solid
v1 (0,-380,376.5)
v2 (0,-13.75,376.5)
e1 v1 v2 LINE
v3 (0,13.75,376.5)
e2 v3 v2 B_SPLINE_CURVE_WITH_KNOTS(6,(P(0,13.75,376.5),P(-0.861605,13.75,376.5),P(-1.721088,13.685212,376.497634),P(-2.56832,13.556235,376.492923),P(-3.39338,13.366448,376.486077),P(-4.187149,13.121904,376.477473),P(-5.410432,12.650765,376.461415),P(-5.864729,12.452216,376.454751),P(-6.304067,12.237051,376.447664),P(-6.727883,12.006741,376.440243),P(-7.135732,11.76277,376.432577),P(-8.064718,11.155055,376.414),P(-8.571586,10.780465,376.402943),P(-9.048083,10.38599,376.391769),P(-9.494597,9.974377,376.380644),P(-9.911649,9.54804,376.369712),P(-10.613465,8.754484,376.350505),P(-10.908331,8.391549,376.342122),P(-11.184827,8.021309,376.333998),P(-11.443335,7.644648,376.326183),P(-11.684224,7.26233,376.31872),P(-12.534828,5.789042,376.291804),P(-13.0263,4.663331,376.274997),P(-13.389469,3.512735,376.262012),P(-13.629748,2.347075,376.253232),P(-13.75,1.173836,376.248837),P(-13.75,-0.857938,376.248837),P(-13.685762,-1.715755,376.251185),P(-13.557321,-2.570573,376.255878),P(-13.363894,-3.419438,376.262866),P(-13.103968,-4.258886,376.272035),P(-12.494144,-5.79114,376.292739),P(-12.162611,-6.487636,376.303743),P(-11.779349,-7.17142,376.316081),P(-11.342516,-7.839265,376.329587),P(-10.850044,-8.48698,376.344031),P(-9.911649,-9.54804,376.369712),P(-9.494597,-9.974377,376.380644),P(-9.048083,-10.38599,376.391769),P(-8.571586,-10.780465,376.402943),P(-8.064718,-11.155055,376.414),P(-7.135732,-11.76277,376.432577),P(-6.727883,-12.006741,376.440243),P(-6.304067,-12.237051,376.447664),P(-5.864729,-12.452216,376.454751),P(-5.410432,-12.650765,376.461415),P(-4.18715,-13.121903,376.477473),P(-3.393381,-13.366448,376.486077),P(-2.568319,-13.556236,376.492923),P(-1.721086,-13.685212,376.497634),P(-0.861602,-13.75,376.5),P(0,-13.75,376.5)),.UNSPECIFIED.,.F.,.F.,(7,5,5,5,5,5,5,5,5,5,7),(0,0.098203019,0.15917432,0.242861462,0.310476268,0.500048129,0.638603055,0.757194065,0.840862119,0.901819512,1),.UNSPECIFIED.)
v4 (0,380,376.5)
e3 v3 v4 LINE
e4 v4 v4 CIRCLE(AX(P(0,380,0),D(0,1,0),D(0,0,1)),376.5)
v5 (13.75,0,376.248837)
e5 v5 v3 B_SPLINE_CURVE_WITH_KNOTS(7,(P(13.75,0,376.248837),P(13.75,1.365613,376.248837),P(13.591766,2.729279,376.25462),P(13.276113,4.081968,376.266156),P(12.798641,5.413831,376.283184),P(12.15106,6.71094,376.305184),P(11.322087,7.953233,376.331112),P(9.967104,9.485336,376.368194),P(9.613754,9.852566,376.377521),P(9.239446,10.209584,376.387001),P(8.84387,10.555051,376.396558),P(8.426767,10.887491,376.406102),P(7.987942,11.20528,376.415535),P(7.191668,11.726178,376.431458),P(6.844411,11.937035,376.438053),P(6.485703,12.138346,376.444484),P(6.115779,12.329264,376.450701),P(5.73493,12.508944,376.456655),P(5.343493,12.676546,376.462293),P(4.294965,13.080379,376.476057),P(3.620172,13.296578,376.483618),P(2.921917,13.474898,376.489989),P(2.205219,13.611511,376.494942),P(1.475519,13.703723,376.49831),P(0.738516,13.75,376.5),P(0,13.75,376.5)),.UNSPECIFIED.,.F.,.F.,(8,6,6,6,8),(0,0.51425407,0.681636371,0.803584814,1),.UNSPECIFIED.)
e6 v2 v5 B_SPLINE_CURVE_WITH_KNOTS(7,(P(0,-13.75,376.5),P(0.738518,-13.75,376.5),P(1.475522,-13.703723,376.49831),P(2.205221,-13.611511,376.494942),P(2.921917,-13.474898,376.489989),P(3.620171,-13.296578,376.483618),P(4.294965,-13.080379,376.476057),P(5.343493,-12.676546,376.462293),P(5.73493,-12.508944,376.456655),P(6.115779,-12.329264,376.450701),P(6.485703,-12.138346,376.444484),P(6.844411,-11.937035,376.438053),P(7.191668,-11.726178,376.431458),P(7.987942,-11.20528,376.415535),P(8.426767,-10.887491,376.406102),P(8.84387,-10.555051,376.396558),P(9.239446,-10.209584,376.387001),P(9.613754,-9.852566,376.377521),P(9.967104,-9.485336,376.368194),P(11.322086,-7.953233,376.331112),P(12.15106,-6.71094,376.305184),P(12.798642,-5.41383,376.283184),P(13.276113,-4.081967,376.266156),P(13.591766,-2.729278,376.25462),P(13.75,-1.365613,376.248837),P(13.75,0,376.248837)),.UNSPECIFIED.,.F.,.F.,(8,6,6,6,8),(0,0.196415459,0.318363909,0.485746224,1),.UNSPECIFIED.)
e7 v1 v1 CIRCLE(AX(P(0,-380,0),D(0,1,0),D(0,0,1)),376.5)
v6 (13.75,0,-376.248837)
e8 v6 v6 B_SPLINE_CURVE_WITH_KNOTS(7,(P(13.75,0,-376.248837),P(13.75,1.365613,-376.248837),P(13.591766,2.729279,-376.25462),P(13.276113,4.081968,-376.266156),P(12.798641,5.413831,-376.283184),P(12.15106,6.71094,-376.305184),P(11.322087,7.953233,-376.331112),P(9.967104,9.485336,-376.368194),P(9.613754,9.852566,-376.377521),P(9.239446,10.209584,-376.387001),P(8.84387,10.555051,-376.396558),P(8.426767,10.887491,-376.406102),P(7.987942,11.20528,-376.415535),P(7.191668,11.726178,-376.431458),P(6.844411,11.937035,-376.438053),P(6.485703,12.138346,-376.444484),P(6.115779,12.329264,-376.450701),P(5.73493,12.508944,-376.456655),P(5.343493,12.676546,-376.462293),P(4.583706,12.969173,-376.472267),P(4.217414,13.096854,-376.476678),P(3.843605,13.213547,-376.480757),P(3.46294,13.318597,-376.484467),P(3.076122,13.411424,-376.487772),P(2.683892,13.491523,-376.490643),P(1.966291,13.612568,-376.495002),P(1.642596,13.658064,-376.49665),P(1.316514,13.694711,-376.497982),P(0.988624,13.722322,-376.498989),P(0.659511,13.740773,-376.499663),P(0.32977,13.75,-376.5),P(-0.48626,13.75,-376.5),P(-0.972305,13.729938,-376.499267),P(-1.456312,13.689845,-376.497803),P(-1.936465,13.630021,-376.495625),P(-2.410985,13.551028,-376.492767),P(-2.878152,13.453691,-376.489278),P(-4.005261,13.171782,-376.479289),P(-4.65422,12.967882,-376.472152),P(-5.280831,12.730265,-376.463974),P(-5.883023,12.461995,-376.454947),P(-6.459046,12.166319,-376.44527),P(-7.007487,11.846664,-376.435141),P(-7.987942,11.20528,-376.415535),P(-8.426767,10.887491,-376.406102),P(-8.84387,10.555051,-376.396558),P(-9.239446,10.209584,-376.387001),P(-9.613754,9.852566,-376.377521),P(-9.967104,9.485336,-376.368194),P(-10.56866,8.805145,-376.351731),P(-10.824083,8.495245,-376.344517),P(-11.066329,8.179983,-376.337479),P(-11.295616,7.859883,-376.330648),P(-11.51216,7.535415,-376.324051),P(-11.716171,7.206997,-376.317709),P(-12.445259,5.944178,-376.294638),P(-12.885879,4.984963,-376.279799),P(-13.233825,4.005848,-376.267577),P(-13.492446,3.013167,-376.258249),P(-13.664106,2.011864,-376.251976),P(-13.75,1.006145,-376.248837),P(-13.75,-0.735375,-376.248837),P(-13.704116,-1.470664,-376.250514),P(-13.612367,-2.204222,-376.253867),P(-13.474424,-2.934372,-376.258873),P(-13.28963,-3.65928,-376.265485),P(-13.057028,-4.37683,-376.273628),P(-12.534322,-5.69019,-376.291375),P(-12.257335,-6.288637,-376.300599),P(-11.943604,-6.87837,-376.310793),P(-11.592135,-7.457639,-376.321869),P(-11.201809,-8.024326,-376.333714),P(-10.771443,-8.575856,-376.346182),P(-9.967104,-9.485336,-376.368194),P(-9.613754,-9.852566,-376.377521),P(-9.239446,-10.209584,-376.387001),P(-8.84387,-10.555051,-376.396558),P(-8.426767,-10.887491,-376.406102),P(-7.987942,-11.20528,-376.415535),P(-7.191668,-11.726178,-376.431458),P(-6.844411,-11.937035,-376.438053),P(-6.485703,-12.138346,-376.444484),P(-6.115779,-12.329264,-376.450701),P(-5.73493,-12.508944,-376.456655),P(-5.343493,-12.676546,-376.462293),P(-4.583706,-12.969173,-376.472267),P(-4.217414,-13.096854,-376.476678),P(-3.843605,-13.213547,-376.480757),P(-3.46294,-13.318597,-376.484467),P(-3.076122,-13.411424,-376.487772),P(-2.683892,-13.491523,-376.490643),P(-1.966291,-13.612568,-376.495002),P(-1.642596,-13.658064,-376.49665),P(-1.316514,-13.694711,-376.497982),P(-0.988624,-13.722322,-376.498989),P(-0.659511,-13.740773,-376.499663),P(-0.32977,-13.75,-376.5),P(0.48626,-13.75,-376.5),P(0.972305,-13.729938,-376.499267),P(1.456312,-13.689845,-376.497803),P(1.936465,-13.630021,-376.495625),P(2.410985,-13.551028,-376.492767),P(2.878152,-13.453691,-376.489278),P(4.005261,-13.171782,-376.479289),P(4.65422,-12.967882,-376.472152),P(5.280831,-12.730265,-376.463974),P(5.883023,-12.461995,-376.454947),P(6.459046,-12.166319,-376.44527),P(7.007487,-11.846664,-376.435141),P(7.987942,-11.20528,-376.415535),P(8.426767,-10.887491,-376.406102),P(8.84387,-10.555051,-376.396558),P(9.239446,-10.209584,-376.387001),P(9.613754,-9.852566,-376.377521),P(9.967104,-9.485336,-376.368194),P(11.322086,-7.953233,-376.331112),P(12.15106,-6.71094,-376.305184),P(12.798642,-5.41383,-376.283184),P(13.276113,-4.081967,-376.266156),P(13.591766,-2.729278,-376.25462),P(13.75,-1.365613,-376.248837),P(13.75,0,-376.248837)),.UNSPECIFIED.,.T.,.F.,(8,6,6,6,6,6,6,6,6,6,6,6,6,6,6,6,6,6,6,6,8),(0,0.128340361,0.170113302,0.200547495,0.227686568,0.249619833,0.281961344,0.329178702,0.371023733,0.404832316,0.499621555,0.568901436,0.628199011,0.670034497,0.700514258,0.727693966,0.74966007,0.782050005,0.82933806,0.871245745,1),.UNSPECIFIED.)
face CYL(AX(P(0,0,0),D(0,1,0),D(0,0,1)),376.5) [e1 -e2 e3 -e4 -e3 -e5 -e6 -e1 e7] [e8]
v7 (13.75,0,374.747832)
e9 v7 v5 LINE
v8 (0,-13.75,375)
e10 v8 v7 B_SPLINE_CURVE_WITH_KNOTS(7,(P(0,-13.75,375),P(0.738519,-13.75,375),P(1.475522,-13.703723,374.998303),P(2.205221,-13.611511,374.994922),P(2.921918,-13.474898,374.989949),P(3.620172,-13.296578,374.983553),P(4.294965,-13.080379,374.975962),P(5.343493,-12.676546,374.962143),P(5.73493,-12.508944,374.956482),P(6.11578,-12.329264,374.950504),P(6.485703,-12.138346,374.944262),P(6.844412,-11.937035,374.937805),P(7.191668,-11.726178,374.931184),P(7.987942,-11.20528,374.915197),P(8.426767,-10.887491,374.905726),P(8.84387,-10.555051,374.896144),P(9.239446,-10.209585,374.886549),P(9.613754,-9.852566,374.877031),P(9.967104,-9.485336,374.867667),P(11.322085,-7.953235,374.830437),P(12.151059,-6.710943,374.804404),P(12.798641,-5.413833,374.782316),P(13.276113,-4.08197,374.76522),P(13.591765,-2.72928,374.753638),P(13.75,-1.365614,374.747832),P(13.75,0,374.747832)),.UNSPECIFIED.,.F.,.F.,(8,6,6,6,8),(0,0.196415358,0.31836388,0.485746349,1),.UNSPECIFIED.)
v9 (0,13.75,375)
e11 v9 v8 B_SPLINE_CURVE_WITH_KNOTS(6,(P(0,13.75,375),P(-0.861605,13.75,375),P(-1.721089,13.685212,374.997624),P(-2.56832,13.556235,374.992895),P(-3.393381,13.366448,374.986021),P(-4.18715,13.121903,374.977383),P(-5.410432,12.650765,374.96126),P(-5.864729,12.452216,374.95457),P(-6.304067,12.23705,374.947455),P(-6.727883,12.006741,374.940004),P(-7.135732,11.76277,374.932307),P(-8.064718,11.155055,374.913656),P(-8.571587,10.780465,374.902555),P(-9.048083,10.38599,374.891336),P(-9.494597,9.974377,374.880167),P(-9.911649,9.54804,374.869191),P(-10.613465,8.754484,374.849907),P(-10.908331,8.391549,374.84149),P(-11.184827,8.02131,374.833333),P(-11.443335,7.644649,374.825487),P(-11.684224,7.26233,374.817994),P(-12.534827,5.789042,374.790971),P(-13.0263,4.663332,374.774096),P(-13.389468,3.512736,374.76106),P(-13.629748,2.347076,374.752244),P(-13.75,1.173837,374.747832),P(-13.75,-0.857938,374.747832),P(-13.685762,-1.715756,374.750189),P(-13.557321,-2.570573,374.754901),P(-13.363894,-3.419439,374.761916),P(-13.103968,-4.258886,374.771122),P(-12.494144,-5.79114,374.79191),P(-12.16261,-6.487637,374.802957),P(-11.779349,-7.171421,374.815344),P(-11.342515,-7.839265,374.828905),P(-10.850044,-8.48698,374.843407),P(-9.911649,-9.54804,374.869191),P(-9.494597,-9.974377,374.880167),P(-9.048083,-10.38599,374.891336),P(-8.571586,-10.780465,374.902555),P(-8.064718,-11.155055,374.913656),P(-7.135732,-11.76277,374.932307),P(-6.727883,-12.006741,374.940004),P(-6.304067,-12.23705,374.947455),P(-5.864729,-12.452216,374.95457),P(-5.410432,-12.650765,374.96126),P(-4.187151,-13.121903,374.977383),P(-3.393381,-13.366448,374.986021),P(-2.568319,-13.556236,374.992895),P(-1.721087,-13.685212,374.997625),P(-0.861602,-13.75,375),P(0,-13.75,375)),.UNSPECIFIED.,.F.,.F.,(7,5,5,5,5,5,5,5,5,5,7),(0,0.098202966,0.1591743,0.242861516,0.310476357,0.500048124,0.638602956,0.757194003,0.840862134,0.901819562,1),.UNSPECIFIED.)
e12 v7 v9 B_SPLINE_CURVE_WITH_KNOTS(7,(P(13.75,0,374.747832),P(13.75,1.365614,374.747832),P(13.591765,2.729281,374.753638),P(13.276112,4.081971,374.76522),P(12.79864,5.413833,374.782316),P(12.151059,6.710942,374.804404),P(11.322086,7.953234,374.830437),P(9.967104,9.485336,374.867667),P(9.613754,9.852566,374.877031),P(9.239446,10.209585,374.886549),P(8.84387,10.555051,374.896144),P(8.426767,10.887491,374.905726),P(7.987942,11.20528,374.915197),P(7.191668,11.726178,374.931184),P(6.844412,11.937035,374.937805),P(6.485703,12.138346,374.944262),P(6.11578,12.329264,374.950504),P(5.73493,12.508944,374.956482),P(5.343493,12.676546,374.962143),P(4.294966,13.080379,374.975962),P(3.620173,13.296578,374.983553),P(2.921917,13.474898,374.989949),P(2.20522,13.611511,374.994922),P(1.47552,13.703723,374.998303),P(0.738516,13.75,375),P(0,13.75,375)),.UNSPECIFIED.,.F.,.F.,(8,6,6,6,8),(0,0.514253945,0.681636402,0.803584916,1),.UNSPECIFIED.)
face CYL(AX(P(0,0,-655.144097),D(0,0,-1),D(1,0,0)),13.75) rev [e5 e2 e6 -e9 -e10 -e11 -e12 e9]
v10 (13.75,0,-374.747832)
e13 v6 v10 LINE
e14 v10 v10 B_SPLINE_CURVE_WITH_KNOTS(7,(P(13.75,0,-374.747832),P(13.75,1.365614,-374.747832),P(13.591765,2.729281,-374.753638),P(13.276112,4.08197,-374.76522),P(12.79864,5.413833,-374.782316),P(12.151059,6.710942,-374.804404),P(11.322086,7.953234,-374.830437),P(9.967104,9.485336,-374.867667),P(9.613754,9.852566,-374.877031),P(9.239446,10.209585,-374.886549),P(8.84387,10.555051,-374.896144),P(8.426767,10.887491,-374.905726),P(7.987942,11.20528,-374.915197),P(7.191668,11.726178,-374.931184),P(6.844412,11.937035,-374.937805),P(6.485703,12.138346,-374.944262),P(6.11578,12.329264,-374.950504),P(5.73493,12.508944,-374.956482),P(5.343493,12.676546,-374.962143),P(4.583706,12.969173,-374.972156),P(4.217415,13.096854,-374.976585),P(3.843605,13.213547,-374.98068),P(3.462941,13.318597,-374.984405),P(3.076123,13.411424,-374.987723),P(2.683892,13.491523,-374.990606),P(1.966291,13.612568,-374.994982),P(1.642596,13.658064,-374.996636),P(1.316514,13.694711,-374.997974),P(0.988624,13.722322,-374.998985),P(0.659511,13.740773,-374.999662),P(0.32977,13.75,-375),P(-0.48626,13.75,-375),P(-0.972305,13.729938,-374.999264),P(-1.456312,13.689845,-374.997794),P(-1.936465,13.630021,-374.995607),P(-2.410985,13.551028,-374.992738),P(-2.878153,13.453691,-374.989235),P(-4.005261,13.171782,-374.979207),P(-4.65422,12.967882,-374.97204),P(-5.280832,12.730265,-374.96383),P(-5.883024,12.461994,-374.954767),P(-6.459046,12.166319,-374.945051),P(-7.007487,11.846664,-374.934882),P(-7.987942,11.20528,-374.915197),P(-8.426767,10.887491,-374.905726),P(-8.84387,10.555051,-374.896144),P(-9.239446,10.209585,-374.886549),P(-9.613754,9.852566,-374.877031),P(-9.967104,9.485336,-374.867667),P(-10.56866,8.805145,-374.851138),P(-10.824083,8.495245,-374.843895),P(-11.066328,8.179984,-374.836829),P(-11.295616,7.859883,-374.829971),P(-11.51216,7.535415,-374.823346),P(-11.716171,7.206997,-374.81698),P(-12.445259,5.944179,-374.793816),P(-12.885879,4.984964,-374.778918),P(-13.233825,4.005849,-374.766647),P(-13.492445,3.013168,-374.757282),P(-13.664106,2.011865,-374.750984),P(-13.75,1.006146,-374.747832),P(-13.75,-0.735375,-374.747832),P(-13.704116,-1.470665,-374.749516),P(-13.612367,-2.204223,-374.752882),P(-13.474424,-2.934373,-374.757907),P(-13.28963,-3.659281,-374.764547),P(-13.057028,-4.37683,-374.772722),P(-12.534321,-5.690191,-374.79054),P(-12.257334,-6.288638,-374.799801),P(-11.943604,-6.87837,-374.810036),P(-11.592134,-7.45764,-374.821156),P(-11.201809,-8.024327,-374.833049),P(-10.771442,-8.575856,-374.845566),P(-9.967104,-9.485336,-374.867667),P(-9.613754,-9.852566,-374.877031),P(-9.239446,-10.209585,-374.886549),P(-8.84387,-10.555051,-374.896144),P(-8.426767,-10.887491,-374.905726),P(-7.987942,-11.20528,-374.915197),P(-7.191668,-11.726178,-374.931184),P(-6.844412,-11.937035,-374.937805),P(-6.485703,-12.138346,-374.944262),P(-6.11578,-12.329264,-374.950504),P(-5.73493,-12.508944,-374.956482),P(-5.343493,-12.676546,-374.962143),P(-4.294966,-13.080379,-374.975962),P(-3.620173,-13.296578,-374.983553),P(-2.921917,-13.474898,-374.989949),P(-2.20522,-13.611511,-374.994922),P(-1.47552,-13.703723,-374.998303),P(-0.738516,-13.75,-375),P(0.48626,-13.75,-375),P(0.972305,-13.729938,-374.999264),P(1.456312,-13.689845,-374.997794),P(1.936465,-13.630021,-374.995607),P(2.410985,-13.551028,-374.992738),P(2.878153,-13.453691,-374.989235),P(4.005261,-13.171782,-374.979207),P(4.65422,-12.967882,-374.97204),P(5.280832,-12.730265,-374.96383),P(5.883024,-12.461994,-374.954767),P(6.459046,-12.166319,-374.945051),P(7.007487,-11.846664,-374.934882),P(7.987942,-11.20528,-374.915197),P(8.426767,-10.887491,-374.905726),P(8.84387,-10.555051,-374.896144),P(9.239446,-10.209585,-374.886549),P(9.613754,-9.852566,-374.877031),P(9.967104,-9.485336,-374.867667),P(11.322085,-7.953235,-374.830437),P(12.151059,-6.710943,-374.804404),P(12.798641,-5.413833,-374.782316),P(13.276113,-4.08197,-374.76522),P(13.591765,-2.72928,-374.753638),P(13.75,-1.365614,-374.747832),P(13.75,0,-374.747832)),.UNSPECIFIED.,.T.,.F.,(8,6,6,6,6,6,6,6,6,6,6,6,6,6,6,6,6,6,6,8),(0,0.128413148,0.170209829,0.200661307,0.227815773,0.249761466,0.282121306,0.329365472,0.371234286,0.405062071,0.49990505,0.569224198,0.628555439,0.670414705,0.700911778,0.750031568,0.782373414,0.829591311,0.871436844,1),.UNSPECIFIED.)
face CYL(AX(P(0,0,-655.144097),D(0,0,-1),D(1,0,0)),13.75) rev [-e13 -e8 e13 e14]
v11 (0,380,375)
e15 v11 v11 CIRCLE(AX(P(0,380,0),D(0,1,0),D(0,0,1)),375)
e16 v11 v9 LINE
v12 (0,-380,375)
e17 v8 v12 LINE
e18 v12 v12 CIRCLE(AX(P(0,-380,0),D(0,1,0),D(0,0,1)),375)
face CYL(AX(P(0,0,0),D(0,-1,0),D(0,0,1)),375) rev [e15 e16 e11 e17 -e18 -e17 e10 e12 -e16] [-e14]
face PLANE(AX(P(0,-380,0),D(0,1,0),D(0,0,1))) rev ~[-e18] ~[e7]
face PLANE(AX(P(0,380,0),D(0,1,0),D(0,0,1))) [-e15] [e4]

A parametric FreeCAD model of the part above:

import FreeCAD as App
import Part
import Sketcher

V = App.Vector

doc = App.newDocument("Part")
params = doc.addObject("Spreadsheet::Sheet", "Params")
for row, (alias, value) in enumerate([
    ("sketch1_diameter", "753 mm"),
    ("sketch1_diameter2", "750 mm"),
    ("pad1_length", "760 mm"),
    ("sketch2_diameter", "27.5 mm"),
], start=1):
    params.set(f"A{row}", alias)
    params.set(f"B{row}", "=" + value)
    params.setAlias(f"B{row}", alias)

body = doc.addObject("PartDesign::Body", "Body")

# Sketch on XZ plane
sketch1 = body.newObject("Sketcher::SketchObject", "Sketch")
sketch1.AttachmentSupport = (doc.getObject("XZ_Plane"), [""])
sketch1.MapMode = "FlatFace"
sketch1.addGeometry([
    Part.Circle(V(0, 0, 0), V(0, 0, 1), 376),
    Part.Circle(V(0, 0, 0), V(0, 0, 1), 375),
], False)
sketch1.addConstraint([
    Sketcher.Constraint("Coincident", 0, 3, -1, 1),
    Sketcher.Constraint("Coincident", 1, 3, -1, 1),
    Sketcher.Constraint("Diameter", 0, 753.0),
    Sketcher.Constraint("Diameter", 1, 750.0),
])
sketch1.setExpression("Constraints[2]", "Params.sketch1_diameter")
sketch1.setExpression("Constraints[3]", "Params.sketch1_diameter2")
pad1 = body.newObject("PartDesign::Pad", "Pad")
pad1.Profile = sketch1
pad1.setExpression("Length", "Params.pad1_length")
pad1.Midplane = True

# Sketch on XY plane
sketch2 = body.newObject("Sketcher::SketchObject", "Sketch001")
sketch2.AttachmentSupport = (doc.getObject("XY_Plane"), [""])
sketch2.MapMode = "FlatFace"
sketch2.addGeometry(Part.Circle(V(0, 0, 0), V(0, 0, 1), 14), False)
sketch2.addConstraint([
    Sketcher.Constraint("Coincident", 0, 3, -1, 1),
    Sketcher.Constraint("Diameter", 0, 27.5),
])
sketch2.setExpression("Constraints[1]", "Params.sketch2_diameter")
pocket1 = body.newObject("PartDesign::Pocket", "Pocket")
pocket1.Profile = sketch2
pocket1.Type = "ThroughAll"
pocket1.Midplane = True

doc.recompute()
